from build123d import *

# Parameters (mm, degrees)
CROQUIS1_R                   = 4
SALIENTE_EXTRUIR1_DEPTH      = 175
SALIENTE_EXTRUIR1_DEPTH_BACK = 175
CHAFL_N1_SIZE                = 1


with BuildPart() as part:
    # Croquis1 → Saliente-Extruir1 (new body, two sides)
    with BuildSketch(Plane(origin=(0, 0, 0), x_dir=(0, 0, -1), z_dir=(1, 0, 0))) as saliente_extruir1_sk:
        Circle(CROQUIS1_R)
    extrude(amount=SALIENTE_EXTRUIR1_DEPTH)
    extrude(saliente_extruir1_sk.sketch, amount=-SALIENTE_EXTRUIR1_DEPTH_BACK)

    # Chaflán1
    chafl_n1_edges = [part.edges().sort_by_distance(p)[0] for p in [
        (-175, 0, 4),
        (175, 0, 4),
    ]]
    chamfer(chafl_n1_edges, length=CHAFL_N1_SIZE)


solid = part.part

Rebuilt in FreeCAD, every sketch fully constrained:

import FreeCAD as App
import Part
import Sketcher
from FreeCAD import Vector


def edges_at(feature, points):
    """Names of the edges that pass closest to the given points."""
    edges = feature.Shape.Edges
    near = lambda p: min(range(len(edges)), key=lambda i: edges[i].distToShape(Part.Vertex(*p))[0])
    return sorted({f"Edge{near(p) + 1}" for p in points})

doc = App.newDocument("Part")
params = doc.addObject("Spreadsheet::Sheet", "Params")
for row, (alias, value) in enumerate([
    ("sketch1_diameter", "8 mm"),
    ("pad1_length", "175 mm"),
    ("pad1_length2", "175 mm"),
    ("chamfer_size", "1 mm"),
], start=1):
    params.set(f"A{row}", alias)
    params.set(f"B{row}", "=" + value)
    params.setAlias(f"B{row}", alias)

body = doc.addObject("PartDesign::Body", "Body")

sketch1 = body.newObject("Sketcher::SketchObject", "Sketch")
sketch1.AttachmentSupport = (doc.getObject("YZ_Plane"), [""])
sketch1.MapMode = "FlatFace"
sketch1.addGeometry(Part.Circle(Vector(0, 0, 0), Vector(0, 0, 1), 4), False)
sketch1.addConstraint([
    Sketcher.Constraint("Coincident", 0, 3, -1, 1),
    Sketcher.Constraint("Diameter", 0, 8.0),
])
sketch1.setExpression("Constraints[1]", "Params.sketch1_diameter")
pad1 = body.newObject("PartDesign::Pad", "Pad")
pad1.Profile = sketch1
pad1.Type = "TwoLengths"
pad1.setExpression("Length", "Params.pad1_length")
pad1.setExpression("Length2", "Params.pad1_length2")
doc.recompute()

chamfer = body.newObject("PartDesign::Chamfer", "Chamfer")
chamfer.Base = (pad1, edges_at(pad1, [(-175, 0, 4), (175, 0, 4)]))
chamfer.setExpression("Size", "Params.chamfer_size")

doc.recompute()
